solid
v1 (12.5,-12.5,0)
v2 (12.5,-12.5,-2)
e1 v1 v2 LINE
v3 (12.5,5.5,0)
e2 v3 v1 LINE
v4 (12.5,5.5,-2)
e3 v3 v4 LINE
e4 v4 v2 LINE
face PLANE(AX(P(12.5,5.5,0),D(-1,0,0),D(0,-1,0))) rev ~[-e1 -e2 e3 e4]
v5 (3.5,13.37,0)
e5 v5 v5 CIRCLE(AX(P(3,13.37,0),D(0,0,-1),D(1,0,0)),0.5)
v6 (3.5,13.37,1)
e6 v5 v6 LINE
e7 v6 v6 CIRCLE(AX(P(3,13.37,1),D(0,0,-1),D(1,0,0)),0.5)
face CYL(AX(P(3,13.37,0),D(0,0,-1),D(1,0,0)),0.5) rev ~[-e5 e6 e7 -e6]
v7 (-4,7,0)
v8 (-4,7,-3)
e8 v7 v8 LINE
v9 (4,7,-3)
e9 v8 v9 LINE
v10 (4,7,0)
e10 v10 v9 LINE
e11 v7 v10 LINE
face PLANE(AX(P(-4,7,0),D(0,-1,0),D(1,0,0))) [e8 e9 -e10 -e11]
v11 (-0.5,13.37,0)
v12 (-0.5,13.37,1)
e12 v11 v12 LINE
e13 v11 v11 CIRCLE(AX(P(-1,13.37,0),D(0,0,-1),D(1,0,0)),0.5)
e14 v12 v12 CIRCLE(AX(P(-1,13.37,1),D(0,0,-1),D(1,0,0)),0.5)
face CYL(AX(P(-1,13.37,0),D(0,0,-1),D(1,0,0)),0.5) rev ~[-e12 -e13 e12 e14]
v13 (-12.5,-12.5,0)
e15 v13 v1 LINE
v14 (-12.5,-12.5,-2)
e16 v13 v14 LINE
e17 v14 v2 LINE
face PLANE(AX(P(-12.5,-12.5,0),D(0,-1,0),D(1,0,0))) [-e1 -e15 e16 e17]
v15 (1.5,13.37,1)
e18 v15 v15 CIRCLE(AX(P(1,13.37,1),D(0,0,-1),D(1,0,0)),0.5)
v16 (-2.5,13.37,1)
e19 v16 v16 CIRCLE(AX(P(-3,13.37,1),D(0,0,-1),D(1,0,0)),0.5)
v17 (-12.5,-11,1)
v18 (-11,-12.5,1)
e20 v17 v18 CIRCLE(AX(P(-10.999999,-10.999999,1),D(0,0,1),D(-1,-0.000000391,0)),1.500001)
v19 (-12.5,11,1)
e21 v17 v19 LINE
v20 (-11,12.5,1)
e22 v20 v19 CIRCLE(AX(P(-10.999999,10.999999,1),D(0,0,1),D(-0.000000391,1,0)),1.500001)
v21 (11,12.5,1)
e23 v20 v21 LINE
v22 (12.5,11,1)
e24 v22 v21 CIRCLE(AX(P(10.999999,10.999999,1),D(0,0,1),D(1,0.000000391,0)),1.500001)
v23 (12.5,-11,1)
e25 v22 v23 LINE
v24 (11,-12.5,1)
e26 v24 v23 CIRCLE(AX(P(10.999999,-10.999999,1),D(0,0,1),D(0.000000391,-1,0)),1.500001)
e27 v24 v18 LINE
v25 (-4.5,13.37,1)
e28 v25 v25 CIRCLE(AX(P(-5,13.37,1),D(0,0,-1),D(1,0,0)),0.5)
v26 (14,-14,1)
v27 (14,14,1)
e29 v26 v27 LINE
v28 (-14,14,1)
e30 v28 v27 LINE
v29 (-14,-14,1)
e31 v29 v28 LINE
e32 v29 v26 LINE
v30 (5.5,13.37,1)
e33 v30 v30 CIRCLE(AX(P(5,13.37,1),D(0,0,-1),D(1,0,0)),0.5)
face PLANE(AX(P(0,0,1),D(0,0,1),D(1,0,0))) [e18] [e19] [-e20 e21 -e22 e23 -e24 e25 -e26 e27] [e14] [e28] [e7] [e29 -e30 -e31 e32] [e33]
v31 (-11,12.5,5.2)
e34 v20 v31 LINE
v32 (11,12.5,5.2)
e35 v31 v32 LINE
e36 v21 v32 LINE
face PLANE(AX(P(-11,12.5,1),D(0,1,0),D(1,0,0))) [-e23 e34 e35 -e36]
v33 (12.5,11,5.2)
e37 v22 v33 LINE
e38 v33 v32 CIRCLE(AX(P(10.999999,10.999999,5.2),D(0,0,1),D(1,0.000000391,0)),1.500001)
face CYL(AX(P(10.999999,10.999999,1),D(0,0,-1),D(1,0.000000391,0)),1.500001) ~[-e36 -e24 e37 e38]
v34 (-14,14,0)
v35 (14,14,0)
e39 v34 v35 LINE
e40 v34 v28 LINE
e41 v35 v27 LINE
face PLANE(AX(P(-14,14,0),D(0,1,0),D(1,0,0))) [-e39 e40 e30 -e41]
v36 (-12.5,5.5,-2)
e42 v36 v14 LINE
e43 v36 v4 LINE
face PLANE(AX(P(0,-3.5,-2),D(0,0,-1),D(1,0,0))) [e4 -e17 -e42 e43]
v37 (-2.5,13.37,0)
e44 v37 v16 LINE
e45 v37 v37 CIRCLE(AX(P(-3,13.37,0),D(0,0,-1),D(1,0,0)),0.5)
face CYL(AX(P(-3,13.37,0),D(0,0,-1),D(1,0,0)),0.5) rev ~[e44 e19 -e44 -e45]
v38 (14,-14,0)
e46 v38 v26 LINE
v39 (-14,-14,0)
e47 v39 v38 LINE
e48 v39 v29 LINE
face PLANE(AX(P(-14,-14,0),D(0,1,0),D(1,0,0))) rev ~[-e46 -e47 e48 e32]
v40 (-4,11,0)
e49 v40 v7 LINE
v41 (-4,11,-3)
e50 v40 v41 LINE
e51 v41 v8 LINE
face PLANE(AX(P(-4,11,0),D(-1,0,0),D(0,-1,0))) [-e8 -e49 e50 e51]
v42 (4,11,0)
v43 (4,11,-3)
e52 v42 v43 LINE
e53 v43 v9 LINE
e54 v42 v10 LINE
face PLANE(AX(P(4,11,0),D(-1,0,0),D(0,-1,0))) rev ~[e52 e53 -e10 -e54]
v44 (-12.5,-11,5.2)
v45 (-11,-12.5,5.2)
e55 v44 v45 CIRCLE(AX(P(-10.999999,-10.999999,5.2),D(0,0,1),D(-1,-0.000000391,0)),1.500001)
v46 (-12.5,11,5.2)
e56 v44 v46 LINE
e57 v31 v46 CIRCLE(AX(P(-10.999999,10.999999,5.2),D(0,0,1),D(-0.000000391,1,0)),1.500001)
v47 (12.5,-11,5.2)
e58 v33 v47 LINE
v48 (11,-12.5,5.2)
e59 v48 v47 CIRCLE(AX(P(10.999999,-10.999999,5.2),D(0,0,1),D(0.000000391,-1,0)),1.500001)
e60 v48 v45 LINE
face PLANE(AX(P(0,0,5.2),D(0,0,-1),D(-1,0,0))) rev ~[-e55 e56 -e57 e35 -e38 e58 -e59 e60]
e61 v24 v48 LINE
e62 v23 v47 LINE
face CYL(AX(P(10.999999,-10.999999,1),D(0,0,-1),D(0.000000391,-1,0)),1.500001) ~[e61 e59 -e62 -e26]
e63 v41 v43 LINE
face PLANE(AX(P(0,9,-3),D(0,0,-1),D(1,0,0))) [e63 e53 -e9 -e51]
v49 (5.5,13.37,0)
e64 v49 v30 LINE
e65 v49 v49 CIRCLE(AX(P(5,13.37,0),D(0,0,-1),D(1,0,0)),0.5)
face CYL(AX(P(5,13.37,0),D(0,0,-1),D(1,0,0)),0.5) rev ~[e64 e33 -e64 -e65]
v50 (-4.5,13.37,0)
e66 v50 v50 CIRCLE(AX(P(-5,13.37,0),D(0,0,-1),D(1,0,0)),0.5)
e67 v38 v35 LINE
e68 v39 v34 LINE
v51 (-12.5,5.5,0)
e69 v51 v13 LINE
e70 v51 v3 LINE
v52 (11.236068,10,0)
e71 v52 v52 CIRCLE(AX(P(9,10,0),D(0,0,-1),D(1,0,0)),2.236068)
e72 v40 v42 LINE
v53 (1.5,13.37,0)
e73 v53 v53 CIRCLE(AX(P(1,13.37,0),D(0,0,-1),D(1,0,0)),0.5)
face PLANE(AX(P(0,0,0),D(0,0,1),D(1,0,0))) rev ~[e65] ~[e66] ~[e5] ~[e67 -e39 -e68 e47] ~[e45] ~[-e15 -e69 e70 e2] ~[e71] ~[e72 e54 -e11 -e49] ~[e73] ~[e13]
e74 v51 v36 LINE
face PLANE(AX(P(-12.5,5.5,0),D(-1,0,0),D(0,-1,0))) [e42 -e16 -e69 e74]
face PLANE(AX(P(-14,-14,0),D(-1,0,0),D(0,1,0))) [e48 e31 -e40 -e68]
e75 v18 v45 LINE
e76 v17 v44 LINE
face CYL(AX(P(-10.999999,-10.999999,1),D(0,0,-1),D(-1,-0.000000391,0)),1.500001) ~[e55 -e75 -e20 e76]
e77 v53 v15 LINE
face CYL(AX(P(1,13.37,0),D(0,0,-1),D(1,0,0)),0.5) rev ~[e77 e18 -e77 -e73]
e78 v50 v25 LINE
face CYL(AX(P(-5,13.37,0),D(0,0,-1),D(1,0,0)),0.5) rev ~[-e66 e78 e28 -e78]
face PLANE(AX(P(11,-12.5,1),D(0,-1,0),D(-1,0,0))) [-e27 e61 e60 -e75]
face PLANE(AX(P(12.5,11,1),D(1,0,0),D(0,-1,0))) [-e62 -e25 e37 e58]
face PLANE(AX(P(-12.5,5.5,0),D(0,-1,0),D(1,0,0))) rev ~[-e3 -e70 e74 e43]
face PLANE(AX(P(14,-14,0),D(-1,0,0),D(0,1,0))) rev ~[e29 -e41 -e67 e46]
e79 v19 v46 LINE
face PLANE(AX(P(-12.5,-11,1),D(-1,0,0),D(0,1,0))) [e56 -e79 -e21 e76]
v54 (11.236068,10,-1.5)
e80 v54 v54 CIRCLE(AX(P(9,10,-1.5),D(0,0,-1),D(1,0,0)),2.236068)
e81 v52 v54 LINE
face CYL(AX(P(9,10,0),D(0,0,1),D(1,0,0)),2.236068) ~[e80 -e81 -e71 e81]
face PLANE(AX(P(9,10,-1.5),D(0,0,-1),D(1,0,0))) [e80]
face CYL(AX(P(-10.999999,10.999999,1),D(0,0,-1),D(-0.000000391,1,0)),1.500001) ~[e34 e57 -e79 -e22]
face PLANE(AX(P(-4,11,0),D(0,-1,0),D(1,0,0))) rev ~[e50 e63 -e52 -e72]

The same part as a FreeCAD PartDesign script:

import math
import FreeCAD as App
import Part
import Sketcher
from FreeCAD import Vector

doc = App.newDocument("Part")
params = doc.addObject("Spreadsheet::Sheet", "Params")
for row, (alias, value) in enumerate([
    ("sketch1_width", "28 mm"),
    ("pad1_length", "1 mm"),
    ("sketch2_radius", "1.500001 mm"),
    ("sketch2_width", "22 mm"),
    ("pad2_length", "4.2 mm"),
    ("sketch3_width", "8 mm"),
    ("sketch3_height", "4 mm"),
    ("pad3_length", "3 mm"),
    ("sketch4_width", "25 mm"),
    ("sketch4_height", "18 mm"),
    ("pad4_length", "2 mm"),
    ("pad5_length", "1.5 mm"),
    ("sketch6_diameter", "1 mm"),
], start=1):
    params.set(f"A{row}", alias)
    params.set(f"B{row}", "=" + value)
    params.setAlias(f"B{row}", alias)

body = doc.addObject("PartDesign::Body", "Body")

sketch1 = doc.addObject("Sketcher::SketchObject", "Sketch")
body.addObject(sketch1)
sketch1.AttachmentSupport = (doc.XY_Plane, [""])
sketch1.MapMode = "FlatFace"
sketch1.addGeometry(Part.LineSegment(Vector(-14, 14, 0), Vector(-14, -14, 0)), False)
sketch1.addGeometry(Part.LineSegment(Vector(-14, -14, 0), Vector(14, -14, 0)), False)
sketch1.addGeometry(Part.LineSegment(Vector(14, -14, 0), Vector(14, 14, 0)), False)
sketch1.addGeometry(Part.LineSegment(Vector(14, 14, 0), Vector(-14, 14, 0)), False)
sketch1.addConstraint(Sketcher.Constraint("Coincident", 0, 2, 1, 1))
sketch1.addConstraint(Sketcher.Constraint("Coincident", 1, 2, 2, 1))
sketch1.addConstraint(Sketcher.Constraint("Coincident", 2, 2, 3, 1))
sketch1.addConstraint(Sketcher.Constraint("Coincident", 3, 2, 0, 1))
sketch1.addConstraint(Sketcher.Constraint("Vertical", 0))
sketch1.addConstraint(Sketcher.Constraint("Horizontal", 1))
sketch1.addConstraint(Sketcher.Constraint("Vertical", 2))
sketch1.addConstraint(Sketcher.Constraint("Horizontal", 3))
sketch1.addConstraint(Sketcher.Constraint("Symmetric", 0, 2, 2, 2, -1, 1))
sketch1.addConstraint(Sketcher.Constraint("Equal", 3, 0))
sketch1.addConstraint(Sketcher.Constraint("DistanceX", 1, 1, 1, 2, 28.0))
sketch1.setExpression("Constraints[10]", "Params.sketch1_width")
pad1 = doc.addObject("PartDesign::Pad", "Pad")
body.addObject(pad1)
pad1.Profile = sketch1
pad1.setExpression("Length", "Params.pad1_length")

sketch2 = doc.addObject("Sketcher::SketchObject", "Sketch001")
body.addObject(sketch2)
sketch2.AttachmentSupport = (doc.XY_Plane, [""])
sketch2.MapMode = "FlatFace"
sketch2.AttachmentOffset = App.Placement(Vector(0, 0, 1), App.Rotation())
sketch2.addGeometry(Part.LineSegment(Vector(11, 12.5, 0), Vector(-11, 12.5, 0)), False)
sketch2.addGeometry(Part.ArcOfCircle(Part.Circle(Vector(-10.999999, 10.999999, 0), Vector(0, 0, 1), 1.500001), math.radians(90.000022), math.radians(179.999978)), False)
sketch2.addGeometry(Part.LineSegment(Vector(-12.5, 11, 0), Vector(-12.5, -11, 0)), False)
sketch2.addGeometry(Part.ArcOfCircle(Part.Circle(Vector(-10.999999, -10.999999, 0), Vector(0, 0, 1), 1.500001), math.radians(-179.999978), math.radians(-90.000022)), False)
sketch2.addGeometry(Part.LineSegment(Vector(-11, -12.5, 0), Vector(11, -12.5, 0)), False)
sketch2.addGeometry(Part.ArcOfCircle(Part.Circle(Vector(10.999999, -10.999999, 0), Vector(0, 0, 1), 1.500001), math.radians(-89.999978), math.radians(-0.000022)), False)
sketch2.addGeometry(Part.LineSegment(Vector(12.5, -11, 0), Vector(12.5, 11, 0)), False)
sketch2.addGeometry(Part.ArcOfCircle(Part.Circle(Vector(10.999999, 10.999999, 0), Vector(0, 0, 1), 1.500001), math.radians(0.000022), math.radians(89.999978)), False)
sketch2.addConstraint(Sketcher.Constraint("Tangent", 0, 2, 1, 1))
sketch2.addConstraint(Sketcher.Constraint("Tangent", 1, 2, 2, 1))
sketch2.addConstraint(Sketcher.Constraint("Tangent", 2, 2, 3, 1))
sketch2.addConstraint(Sketcher.Constraint("Tangent", 3, 2, 4, 1))
sketch2.addConstraint(Sketcher.Constraint("Tangent", 4, 2, 5, 1))
sketch2.addConstraint(Sketcher.Constraint("Tangent", 5, 2, 6, 1))
sketch2.addConstraint(Sketcher.Constraint("Tangent", 6, 2, 7, 1))
sketch2.addConstraint(Sketcher.Constraint("Tangent", 7, 2, 0, 1))
sketch2.addConstraint(Sketcher.Constraint("Horizontal", 0))
sketch2.addConstraint(Sketcher.Constraint("Vertical", 2))
sketch2.addConstraint(Sketcher.Constraint("Horizontal", 4))
sketch2.addConstraint(Sketcher.Constraint("Vertical", 6))
sketch2.addConstraint(Sketcher.Constraint("Equal", 1, 3))
sketch2.addConstraint(Sketcher.Constraint("Equal", 3, 5))
sketch2.addConstraint(Sketcher.Constraint("Equal", 5, 7))
sketch2.addConstraint(Sketcher.Constraint("Symmetric", 1, 3, 5, 3, -1, 1))
sketch2.addConstraint(Sketcher.Constraint("Equal", 4, 2))
sketch2.addConstraint(Sketcher.Constraint("Radius", 1, 1.500001))
sketch2.addConstraint(Sketcher.Constraint("DistanceX", 0, 2, 0, 1, 22.0))
sketch2.setExpression("Constraints[17]", "Params.sketch2_radius")
sketch2.setExpression("Constraints[18]", "Params.sketch2_width")
pad2 = doc.addObject("PartDesign::Pad", "Pad001")
body.addObject(pad2)
pad2.Profile = sketch2
pad2.setExpression("Length", "Params.pad2_length")

sketch3 = doc.addObject("Sketcher::SketchObject", "Sketch002")
body.addObject(sketch3)
sketch3.AttachmentSupport = (doc.XY_Plane, [""])
sketch3.MapMode = "FlatFace"
sketch3.addGeometry(Part.LineSegment(Vector(-4, 7, 0), Vector(-4, 11, 0)), False)
sketch3.addGeometry(Part.LineSegment(Vector(-4, 11, 0), Vector(4, 11, 0)), False)
sketch3.addGeometry(Part.LineSegment(Vector(4, 11, 0), Vector(4, 7, 0)), False)
sketch3.addGeometry(Part.LineSegment(Vector(4, 7, 0), Vector(-4, 7, 0)), False)
sketch3.addConstraint(Sketcher.Constraint("Coincident", 0, 2, 1, 1))
sketch3.addConstraint(Sketcher.Constraint("Coincident", 1, 2, 2, 1))
sketch3.addConstraint(Sketcher.Constraint("Coincident", 2, 2, 3, 1))
sketch3.addConstraint(Sketcher.Constraint("Coincident", 3, 2, 0, 1))
sketch3.addConstraint(Sketcher.Constraint("Vertical", 0))
sketch3.addConstraint(Sketcher.Constraint("Horizontal", 1))
sketch3.addConstraint(Sketcher.Constraint("Vertical", 2))
sketch3.addConstraint(Sketcher.Constraint("Horizontal", 3))
sketch3.addConstraint(Sketcher.Constraint("DistanceX", 1, 1, 1, 2, 8.0))
sketch3.addConstraint(Sketcher.Constraint("DistanceY", 0, 1, 0, 2, 4.0))
sketch3.addConstraint(Sketcher.Constraint("DistanceX", 0, 2, -1, 1, 4.0))
sketch3.addConstraint(Sketcher.Constraint("DistanceY", -1, 1, 0, 2, 11.0))
sketch3.setExpression("Constraints[8]", "Params.sketch3_width")
sketch3.setExpression("Constraints[9]", "Params.sketch3_height")
pad3 = doc.addObject("PartDesign::Pad", "Pad002")
body.addObject(pad3)
pad3.Profile = sketch3
pad3.setExpression("Length", "Params.pad3_length")
pad3.Reversed = True

sketch4 = doc.addObject("Sketcher::SketchObject", "Sketch003")
body.addObject(sketch4)
sketch4.AttachmentSupport = (doc.XY_Plane, [""])
sketch4.MapMode = "FlatFace"
sketch4.addGeometry(Part.LineSegment(Vector(-12.5, -12.5, 0), Vector(-12.5, 5.5, 0)), False)
sketch4.addGeometry(Part.LineSegment(Vector(-12.5, 5.5, 0), Vector(12.5, 5.5, 0)), False)
sketch4.addGeometry(Part.LineSegment(Vector(12.5, 5.5, 0), Vector(12.5, -12.5, 0)), False)
sketch4.addGeometry(Part.LineSegment(Vector(12.5, -12.5, 0), Vector(-12.5, -12.5, 0)), False)
sketch4.addConstraint(Sketcher.Constraint("Coincident", 0, 2, 1, 1))
sketch4.addConstraint(Sketcher.Constraint("Coincident", 1, 2, 2, 1))
sketch4.addConstraint(Sketcher.Constraint("Coincident", 2, 2, 3, 1))
sketch4.addConstraint(Sketcher.Constraint("Coincident", 3, 2, 0, 1))
sketch4.addConstraint(Sketcher.Constraint("Vertical", 0))
sketch4.addConstraint(Sketcher.Constraint("Horizontal", 1))
sketch4.addConstraint(Sketcher.Constraint("Vertical", 2))
sketch4.addConstraint(Sketcher.Constraint("Horizontal", 3))
sketch4.addConstraint(Sketcher.Constraint("DistanceX", 1, 1, 1, 2, 25.0))
sketch4.addConstraint(Sketcher.Constraint("DistanceY", 0, 1, 0, 2, 18.0))
sketch4.addConstraint(Sketcher.Constraint("DistanceX", 0, 2, -1, 1, 12.5))
sketch4.addConstraint(Sketcher.Constraint("DistanceY", -1, 1, 0, 2, 5.5))
sketch4.setExpression("Constraints[8]", "Params.sketch4_width")
sketch4.setExpression("Constraints[9]", "Params.sketch4_height")
pad4 = doc.addObject("PartDesign::Pad", "Pad003")
body.addObject(pad4)
pad4.Profile = sketch4
pad4.setExpression("Length", "Params.pad4_length")
pad4.Reversed = True

sketch5 = doc.addObject("Sketcher::SketchObject", "Sketch004")
body.addObject(sketch5)
sketch5.AttachmentSupport = (doc.XY_Plane, [""])
sketch5.MapMode = "FlatFace"
sketch5.addGeometry(Part.Circle(Vector(9, 10, 0), Vector(0, 0, 1), 2.236068), False)
sketch5.addConstraint(Sketcher.Constraint("DistanceX", -1, 1, 0, 3, 9.0))
sketch5.addConstraint(Sketcher.Constraint("DistanceY", -1, 1, 0, 3, 10.0))
sketch5.addConstraint(Sketcher.Constraint("Diameter", 0, 4.472136))
pad5 = doc.addObject("PartDesign::Pad", "Pad004")
body.addObject(pad5)
pad5.Profile = sketch5
pad5.setExpression("Length", "Params.pad5_length")
pad5.Reversed = True

sketch6 = doc.addObject("Sketcher::SketchObject", "Sketch005")
body.addObject(sketch6)
sketch6.AttachmentSupport = (doc.XY_Plane, [""])
sketch6.MapMode = "FlatFace"
sketch6.addGeometry(Part.Circle(Vector(-5, 13.37, 0), Vector(0, 0, 1), 0.5), False)
sketch6.addGeometry(Part.Circle(Vector(-3, 13.37, 0), Vector(0, 0, 1), 0.5), False)
sketch6.addGeometry(Part.Circle(Vector(-1, 13.37, 0), Vector(0, 0, 1), 0.5), False)
sketch6.addGeometry(Part.Circle(Vector(1, 13.37, 0), Vector(0, 0, 1), 0.5), False)
sketch6.addGeometry(Part.Circle(Vector(3, 13.37, 0), Vector(0, 0, 1), 0.5), False)
sketch6.addGeometry(Part.Circle(Vector(5, 13.37, 0), Vector(0, 0, 1), 0.5), False)
sketch6.addConstraint(Sketcher.Constraint("Equal", 0, 1))
sketch6.addConstraint(Sketcher.Constraint("Equal", 1, 2))
sketch6.addConstraint(Sketcher.Constraint("Equal", 2, 3))
sketch6.addConstraint(Sketcher.Constraint("Equal", 3, 4))
sketch6.addConstraint(Sketcher.Constraint("Equal", 4, 5))
sketch6.addConstraint(Sketcher.Constraint("Symmetric", 2, 3, 3, 3, -2))
sketch6.addConstraint(Sketcher.Constraint("Symmetric", 1, 3, 4, 3, -2))
sketch6.addConstraint(Sketcher.Constraint("Symmetric", 0, 3, 5, 3, -2))
sketch6.addConstraint(Sketcher.Constraint("Horizontal", 0, 3, 1, 3))
sketch6.addConstraint(Sketcher.Constraint("Horizontal", 1, 3, 2, 3))
sketch6.addConstraint(Sketcher.Constraint("Diameter", 0, 1.0))
sketch6.addConstraint(Sketcher.Constraint("DistanceX", 0, 3, -1, 1, 5.0))
sketch6.addConstraint(Sketcher.Constraint("DistanceX", 1, 3, -1, 1, 3.0))
sketch6.addConstraint(Sketcher.Constraint("DistanceX", 2, 3, -1, 1, 1.0))
sketch6.addConstraint(Sketcher.Constraint("DistanceY", -1, 1, 0, 3, 13.37))
sketch6.setExpression("Constraints[10]", "Params.sketch6_diameter")
pocket1 = doc.addObject("PartDesign::Pocket", "Pocket")
body.addObject(pocket1)
pocket1.Profile = sketch6
pocket1.Type = "ThroughAll"
pocket1.Reversed = True

doc.recompute()
